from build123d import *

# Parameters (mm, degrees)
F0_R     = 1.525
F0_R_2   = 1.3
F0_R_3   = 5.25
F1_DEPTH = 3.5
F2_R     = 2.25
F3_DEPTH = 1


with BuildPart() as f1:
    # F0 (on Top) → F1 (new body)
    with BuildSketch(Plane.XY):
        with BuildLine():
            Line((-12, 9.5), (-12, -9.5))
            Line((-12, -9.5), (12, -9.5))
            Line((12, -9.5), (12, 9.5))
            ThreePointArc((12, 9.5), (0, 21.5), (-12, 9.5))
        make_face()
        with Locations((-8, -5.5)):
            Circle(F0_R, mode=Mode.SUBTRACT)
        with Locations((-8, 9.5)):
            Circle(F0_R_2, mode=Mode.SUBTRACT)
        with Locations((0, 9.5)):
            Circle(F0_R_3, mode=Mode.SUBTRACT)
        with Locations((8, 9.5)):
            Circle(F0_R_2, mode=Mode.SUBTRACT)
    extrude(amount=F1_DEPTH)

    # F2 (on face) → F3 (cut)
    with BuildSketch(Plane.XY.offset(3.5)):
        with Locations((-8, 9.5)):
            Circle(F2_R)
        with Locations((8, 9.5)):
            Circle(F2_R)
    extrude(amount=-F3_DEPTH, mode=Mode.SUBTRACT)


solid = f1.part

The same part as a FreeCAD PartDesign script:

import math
import FreeCAD as App
import Part
import Sketcher
Q = App.Units.Quantity

doc = App.newDocument("Part")
body = doc.addObject("PartDesign::Body", "Body")

sketch1 = body.newObject("Sketcher::SketchObject", "Sketch")
sketch1.AttachmentSupport = (doc.getObject("XY_Plane"), [""])
sketch1.MapMode = "FlatFace"
sketch1.addGeometry(Part.LineSegment(App.Vector(-12, 9.5, 0), App.Vector(-12, -9.5, 0)), False)
sketch1.addGeometry(Part.LineSegment(App.Vector(-12, -9.5, 0), App.Vector(12, -9.5, 0)), False)
sketch1.addGeometry(Part.LineSegment(App.Vector(12, -9.5, 0), App.Vector(12, 9.5, 0)), False)
sketch1.addGeometry(Part.ArcOfCircle(Part.Circle(App.Vector(0, 9.5, 0), App.Vector(0, 0, 1), 12), math.radians(0), math.radians(180)), False)
sketch1.addGeometry(Part.Circle(App.Vector(-8, -5.5, 0), App.Vector(0, 0, 1), 1.5), False)
sketch1.addGeometry(Part.Circle(App.Vector(-8, 9.5, 0), App.Vector(0, 0, 1), 1.3), False)
sketch1.addGeometry(Part.Circle(App.Vector(0, 9.5, 0), App.Vector(0, 0, 1), 5.2), False)
sketch1.addGeometry(Part.Circle(App.Vector(8, 9.5, 0), App.Vector(0, 0, 1), 1.3), False)
sketch1.addConstraint(Sketcher.Constraint("Coincident", 0, 2, 1, 1))
sketch1.addConstraint(Sketcher.Constraint("Coincident", 1, 2, 2, 1))
sketch1.addConstraint(Sketcher.Constraint("Tangent", 2, 2, 3, 1))
sketch1.addConstraint(Sketcher.Constraint("Tangent", 3, 2, 0, 1))
sketch1.addConstraint(Sketcher.Constraint("Vertical", 0))
sketch1.addConstraint(Sketcher.Constraint("Horizontal", 1))
sketch1.addConstraint(Sketcher.Constraint("Vertical", 2))
sketch1.addConstraint(Sketcher.Constraint("Coincident", 6, 3, 3, 3))
sketch1.addConstraint(Sketcher.Constraint("Equal", 5, 7))
sketch1.addConstraint(Sketcher.Constraint("Symmetric", 0, 2, 2, 2, -1, 1))
sketch1.addConstraint(Sketcher.Constraint("Symmetric", 5, 3, 7, 3, -2))
sketch1.addConstraint(Sketcher.Constraint("Horizontal", 3, 3, 5, 3))
sketch1.addConstraint(Sketcher.Constraint("Vertical", 4, 3, 5, 3))
sketch1.addConstraint(Sketcher.Constraint("Radius", 3, Q("12 mm")))
sketch1.addConstraint(Sketcher.Constraint("Diameter", 5, Q("2.6 mm")))
sketch1.addConstraint(Sketcher.Constraint("Diameter", 6, Q("10.5 mm")))
sketch1.addConstraint(Sketcher.Constraint("Diameter", 4, Q("3.05 mm")))
sketch1.addConstraint(Sketcher.Constraint("DistanceY", 0, 2, 0, 1, Q("19 mm")))
sketch1.addConstraint(Sketcher.Constraint("DistanceX", 4, 3, -1, 1, Q("8 mm")))
sketch1.addConstraint(Sketcher.Constraint("DistanceY", 4, 3, 3, 3, Q("15 mm")))
pad1 = body.newObject("PartDesign::Pad", "Pad")
pad1.Profile = sketch1
pad1.Length = 3.5

sketch2 = body.newObject("Sketcher::SketchObject", "Sketch001")
sketch2.AttachmentSupport = (doc.getObject("XY_Plane"), [""])
sketch2.MapMode = "FlatFace"
sketch2.AttachmentOffset = App.Placement(App.Vector(0, 0, 3.5), App.Rotation())
sketch2.addGeometry(Part.Circle(App.Vector(-8, 9.5, 0), App.Vector(0, 0, 1), 2.2), False)
sketch2.addGeometry(Part.Circle(App.Vector(8, 9.5, 0), App.Vector(0, 0, 1), 2.2), False)
sketch2.addConstraint(Sketcher.Constraint("Equal", 0, 1))
sketch2.addConstraint(Sketcher.Constraint("Symmetric", 0, 3, 1, 3, -2))
sketch2.addConstraint(Sketcher.Constraint("Diameter", 0, Q("4.5 mm")))
sketch2.addConstraint(Sketcher.Constraint("DistanceX", 0, 3, -1, 1, Q("8 mm")))
sketch2.addConstraint(Sketcher.Constraint("DistanceY", -1, 1, 0, 3, Q("9.5 mm")))
pocket1 = body.newObject("PartDesign::Pocket", "Pocket")
pocket1.Profile = sketch2
pocket1.Length = 1

doc.recompute()
